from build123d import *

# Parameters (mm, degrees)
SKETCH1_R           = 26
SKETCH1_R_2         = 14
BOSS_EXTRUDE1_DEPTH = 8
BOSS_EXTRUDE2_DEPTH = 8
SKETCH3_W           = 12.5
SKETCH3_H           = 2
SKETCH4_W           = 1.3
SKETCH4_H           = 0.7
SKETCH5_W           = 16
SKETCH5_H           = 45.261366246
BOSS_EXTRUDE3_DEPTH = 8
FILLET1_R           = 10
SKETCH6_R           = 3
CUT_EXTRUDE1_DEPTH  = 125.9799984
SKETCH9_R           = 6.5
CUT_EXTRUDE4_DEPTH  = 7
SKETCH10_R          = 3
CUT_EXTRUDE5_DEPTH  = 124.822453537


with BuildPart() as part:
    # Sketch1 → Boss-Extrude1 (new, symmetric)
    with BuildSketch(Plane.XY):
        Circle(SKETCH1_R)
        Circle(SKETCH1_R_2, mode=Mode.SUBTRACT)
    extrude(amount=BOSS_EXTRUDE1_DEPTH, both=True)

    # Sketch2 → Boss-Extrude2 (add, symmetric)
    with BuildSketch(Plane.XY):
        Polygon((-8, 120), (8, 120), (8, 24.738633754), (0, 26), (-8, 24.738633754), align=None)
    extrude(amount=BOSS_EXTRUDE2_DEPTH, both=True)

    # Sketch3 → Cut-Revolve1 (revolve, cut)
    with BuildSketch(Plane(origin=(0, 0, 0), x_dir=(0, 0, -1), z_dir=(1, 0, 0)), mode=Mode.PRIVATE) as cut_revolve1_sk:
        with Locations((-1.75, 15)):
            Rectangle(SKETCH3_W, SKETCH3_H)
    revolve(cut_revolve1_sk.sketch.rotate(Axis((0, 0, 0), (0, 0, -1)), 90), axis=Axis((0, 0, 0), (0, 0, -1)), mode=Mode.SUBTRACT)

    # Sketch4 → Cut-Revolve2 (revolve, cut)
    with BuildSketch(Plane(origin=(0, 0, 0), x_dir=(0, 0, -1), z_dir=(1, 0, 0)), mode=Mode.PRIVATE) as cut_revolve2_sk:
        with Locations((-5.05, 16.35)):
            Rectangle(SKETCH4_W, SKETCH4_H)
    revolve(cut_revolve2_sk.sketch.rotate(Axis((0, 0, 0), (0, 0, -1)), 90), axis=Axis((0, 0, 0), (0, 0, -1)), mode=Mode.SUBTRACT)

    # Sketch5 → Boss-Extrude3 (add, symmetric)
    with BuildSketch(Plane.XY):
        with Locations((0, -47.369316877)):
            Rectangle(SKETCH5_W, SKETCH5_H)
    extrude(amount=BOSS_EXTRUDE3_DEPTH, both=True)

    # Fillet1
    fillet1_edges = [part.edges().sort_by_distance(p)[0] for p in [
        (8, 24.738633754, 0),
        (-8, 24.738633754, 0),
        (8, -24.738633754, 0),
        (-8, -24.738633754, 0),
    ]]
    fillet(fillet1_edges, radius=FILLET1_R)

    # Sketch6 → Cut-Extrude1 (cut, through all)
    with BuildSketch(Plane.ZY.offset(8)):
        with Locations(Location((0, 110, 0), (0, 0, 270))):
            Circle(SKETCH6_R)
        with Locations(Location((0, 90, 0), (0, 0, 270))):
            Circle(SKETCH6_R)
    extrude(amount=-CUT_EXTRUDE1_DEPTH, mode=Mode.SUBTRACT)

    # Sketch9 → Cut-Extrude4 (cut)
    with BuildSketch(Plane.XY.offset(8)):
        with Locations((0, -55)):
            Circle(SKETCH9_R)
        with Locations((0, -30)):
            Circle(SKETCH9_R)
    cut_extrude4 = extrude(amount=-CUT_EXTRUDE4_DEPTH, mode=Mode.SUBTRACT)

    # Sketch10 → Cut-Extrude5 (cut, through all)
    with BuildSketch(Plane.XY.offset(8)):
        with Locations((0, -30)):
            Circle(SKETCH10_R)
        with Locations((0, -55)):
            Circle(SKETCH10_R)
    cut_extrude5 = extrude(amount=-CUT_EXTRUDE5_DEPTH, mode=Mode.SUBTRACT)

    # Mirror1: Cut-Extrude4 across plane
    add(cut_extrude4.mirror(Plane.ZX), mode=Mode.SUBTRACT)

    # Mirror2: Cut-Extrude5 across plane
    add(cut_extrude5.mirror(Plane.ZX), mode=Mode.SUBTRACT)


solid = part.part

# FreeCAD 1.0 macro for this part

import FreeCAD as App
import Part
import Sketcher
Q = App.Units.Quantity


def edges_at(feature, points):
    """Names of the edges that pass closest to the given points."""
    edges = feature.Shape.Edges
    near = lambda p: min(range(len(edges)), key=lambda i: edges[i].distToShape(Part.Vertex(*p))[0])
    return sorted({f"Edge{near(p) + 1}" for p in points})


def add_polygon(sketch, points):
    """Adds a closed chain of lines whose ends are joined by coincident constraints."""
    first, n = sketch.GeometryCount, len(points)
    for a, b in zip(points, points[1:] + points[:1]):
        sketch.addGeometry(Part.LineSegment(App.Vector(*a, 0), App.Vector(*b, 0)), False)
    for i in range(n):
        sketch.addConstraint(Sketcher.Constraint("Coincident", first + i, 2, first + (i + 1) % n, 1))

doc = App.newDocument("Part")
body = doc.addObject("PartDesign::Body", "Body")

sketch1 = body.newObject("Sketcher::SketchObject", "Sketch")
sketch1.AttachmentSupport = (doc.getObject("XY_Plane"), [""])
sketch1.MapMode = "FlatFace"
sketch1.addGeometry(Part.Circle(App.Vector(0, 0, 0), App.Vector(0, 0, 1), 26), False)
sketch1.addGeometry(Part.Circle(App.Vector(0, 0, 0), App.Vector(0, 0, 1), 14), False)
sketch1.addConstraint(Sketcher.Constraint("Coincident", 0, 3, -1, 1))
sketch1.addConstraint(Sketcher.Constraint("Coincident", 1, 3, -1, 1))
sketch1.addConstraint(Sketcher.Constraint("Diameter", 0, Q("52 mm")))
sketch1.addConstraint(Sketcher.Constraint("Diameter", 1, Q("28 mm")))
pad1 = body.newObject("PartDesign::Pad", "Pad")
pad1.Profile = sketch1
pad1.Length = 16
pad1.Midplane = True

sketch2 = body.newObject("Sketcher::SketchObject", "Sketch001")
sketch2.AttachmentSupport = (doc.getObject("XY_Plane"), [""])
sketch2.MapMode = "FlatFace"
add_polygon(sketch2, [(8, 120), (-8, 120), (-8, 25), (0, 26), (8, 25)])
sketch2.addConstraint(Sketcher.Constraint("Horizontal", 0))
sketch2.addConstraint(Sketcher.Constraint("Vertical", 1))
sketch2.addConstraint(Sketcher.Constraint("Vertical", 4))
sketch2.addConstraint(Sketcher.Constraint("Symmetric", 1, 2, 3, 2, -2))
sketch2.addConstraint(Sketcher.Constraint("PointOnObject", 2, 2, -2))
sketch2.addConstraint(Sketcher.Constraint("DistanceX", 0, 2, 0, 1, Q("16 mm")))
sketch2.addConstraint(Sketcher.Constraint("DistanceY", -1, 1, 0, 2, Q("120 mm")))
sketch2.addConstraint(Sketcher.Constraint("DistanceY", -1, 1, 2, 2, Q("26 mm")))
sketch2.addConstraint(Sketcher.Constraint("Distance", 2, Q("8.09883 mm")))
pad2 = body.newObject("PartDesign::Pad", "Pad001")
pad2.Profile = sketch2
pad2.Length = 16
pad2.Midplane = True

sketch3 = body.newObject("Sketcher::SketchObject", "Sketch002")
sketch3.AttachmentSupport = (doc.getObject("YZ_Plane"), [""])
sketch3.MapMode = "FlatFace"
add_polygon(sketch3, [(16, 8), (14, 8), (14, -4.5), (16, -4.5)])
sketch3.addConstraint(Sketcher.Constraint("Horizontal", 0))
sketch3.addConstraint(Sketcher.Constraint("Vertical", 1))
sketch3.addConstraint(Sketcher.Constraint("Horizontal", 2))
sketch3.addConstraint(Sketcher.Constraint("Vertical", 3))
sketch3.addConstraint(Sketcher.Constraint("DistanceX", 0, 2, 0, 1, Q("2 mm")))
sketch3.addConstraint(Sketcher.Constraint("DistanceY", 1, 2, 1, 1, Q("12.5 mm")))
sketch3.addConstraint(Sketcher.Constraint("DistanceX", -1, 1, 0, 2, Q("14 mm")))
sketch3.addConstraint(Sketcher.Constraint("DistanceY", -1, 1, 0, 2, Q("8 mm")))
groove = body.newObject("PartDesign::Groove", "Groove")
groove.Profile = sketch3
groove.ReferenceAxis = (sketch3, ["V_Axis"])
groove.Angle = 360

sketch4 = body.newObject("Sketcher::SketchObject", "Sketch003")
sketch4.AttachmentSupport = (doc.getObject("YZ_Plane"), [""])
sketch4.MapMode = "FlatFace"
add_polygon(sketch4, [(16.7, 5.7), (16, 5.7), (16, 4.4), (16.7, 4.4)])
sketch4.addConstraint(Sketcher.Constraint("Horizontal", 0))
sketch4.addConstraint(Sketcher.Constraint("Vertical", 1))
sketch4.addConstraint(Sketcher.Constraint("Horizontal", 2))
sketch4.addConstraint(Sketcher.Constraint("Vertical", 3))
sketch4.addConstraint(Sketcher.Constraint("DistanceX", 0, 2, 0, 1, Q("0.7 mm")))
sketch4.addConstraint(Sketcher.Constraint("DistanceY", 1, 2, 1, 1, Q("1.3 mm")))
sketch4.addConstraint(Sketcher.Constraint("DistanceX", -1, 1, 0, 2, Q("16 mm")))
sketch4.addConstraint(Sketcher.Constraint("DistanceY", -1, 1, 0, 2, Q("5.7 mm")))
groove2 = body.newObject("PartDesign::Groove", "Groove001")
groove2.Profile = sketch4
groove2.ReferenceAxis = (sketch4, ["V_Axis"])
groove2.Angle = 360

sketch5 = body.newObject("Sketcher::SketchObject", "Sketch004")
sketch5.AttachmentSupport = (doc.getObject("XY_Plane"), [""])
sketch5.MapMode = "FlatFace"
add_polygon(sketch5, [(-8, -25), (-8, -70), (8, -70), (8, -25)])
sketch5.addConstraint(Sketcher.Constraint("Vertical", 0))
sketch5.addConstraint(Sketcher.Constraint("Horizontal", 1))
sketch5.addConstraint(Sketcher.Constraint("Vertical", 2))
sketch5.addConstraint(Sketcher.Constraint("Horizontal", 3))
sketch5.addConstraint(Sketcher.Constraint("DistanceX", 1, 1, 1, 2, Q("16 mm")))
sketch5.addConstraint(Sketcher.Constraint("DistanceX", 0, 2, -1, 1, Q("8 mm")))
sketch5.addConstraint(Sketcher.Constraint("DistanceY", 0, 2, -1, 1, Q("70 mm")))
sketch5.addConstraint(Sketcher.Constraint("DistanceY", 0, 2, 0, 1, Q("45.261366 mm")))
pad3 = body.newObject("PartDesign::Pad", "Pad002")
pad3.Profile = sketch5
pad3.Length = 16
pad3.Midplane = True
doc.recompute()

fillet = body.newObject("PartDesign::Fillet", "Fillet")
fillet.Base = (pad3, edges_at(pad3, [
    (8, 24.739, 0),
    (-8, 24.739, 0),
    (8, -24.739, 0),
    (-8, -24.739, 0),
]))
fillet.Radius = 10

sketch6 = body.newObject("Sketcher::SketchObject", "Sketch005")
sketch6.AttachmentSupport = (doc.getObject("YZ_Plane"), [""])
sketch6.MapMode = "FlatFace"
sketch6.AttachmentOffset = App.Placement(App.Vector(0, 0, -8), App.Rotation())
sketch6.addGeometry(Part.Circle(App.Vector(110, 0, 0), App.Vector(0, 0, 1), 3), False)
sketch6.addGeometry(Part.Circle(App.Vector(90, 0, 0), App.Vector(0, 0, 1), 3), False)
sketch6.addConstraint(Sketcher.Constraint("Equal", 0, 1))
sketch6.addConstraint(Sketcher.Constraint("PointOnObject", 0, 3, -1))
sketch6.addConstraint(Sketcher.Constraint("PointOnObject", 1, 3, -1))
sketch6.addConstraint(Sketcher.Constraint("Diameter", 0, Q("6 mm")))
sketch6.addConstraint(Sketcher.Constraint("DistanceX", -1, 1, 0, 3, Q("110 mm")))
sketch6.addConstraint(Sketcher.Constraint("DistanceX", -1, 1, 1, 3, Q("90 mm")))
pocket1 = body.newObject("PartDesign::Pocket", "Pocket")
pocket1.Profile = sketch6
pocket1.Type = "ThroughAll"
pocket1.Reversed = True

sketch7 = body.newObject("Sketcher::SketchObject", "Sketch006")
sketch7.AttachmentSupport = (doc.getObject("XY_Plane"), [""])
sketch7.MapMode = "FlatFace"
sketch7.AttachmentOffset = App.Placement(App.Vector(0, 0, 8), App.Rotation())
sketch7.addGeometry(Part.Circle(App.Vector(0, -55, 0), App.Vector(0, 0, 1), 6), False)
sketch7.addGeometry(Part.Circle(App.Vector(0, -30, 0), App.Vector(0, 0, 1), 6), False)
sketch7.addConstraint(Sketcher.Constraint("Equal", 0, 1))
sketch7.addConstraint(Sketcher.Constraint("PointOnObject", 0, 3, -2))
sketch7.addConstraint(Sketcher.Constraint("PointOnObject", 1, 3, -2))
sketch7.addConstraint(Sketcher.Constraint("Diameter", 0, Q("13 mm")))
sketch7.addConstraint(Sketcher.Constraint("DistanceY", 0, 3, -1, 1, Q("55 mm")))
sketch7.addConstraint(Sketcher.Constraint("DistanceY", 1, 3, -1, 1, Q("30 mm")))
pocket2 = body.newObject("PartDesign::Pocket", "Pocket001")
pocket2.Profile = sketch7
pocket2.Length = 7

sketch8 = body.newObject("Sketcher::SketchObject", "Sketch007")
sketch8.AttachmentSupport = (doc.getObject("XY_Plane"), [""])
sketch8.MapMode = "FlatFace"
sketch8.AttachmentOffset = App.Placement(App.Vector(0, 0, 8), App.Rotation())
sketch8.addGeometry(Part.Circle(App.Vector(0, -30, 0), App.Vector(0, 0, 1), 3), False)
sketch8.addGeometry(Part.Circle(App.Vector(0, -55, 0), App.Vector(0, 0, 1), 3), False)
sketch8.addConstraint(Sketcher.Constraint("Equal", 0, 1))
sketch8.addConstraint(Sketcher.Constraint("PointOnObject", 0, 3, -2))
sketch8.addConstraint(Sketcher.Constraint("PointOnObject", 1, 3, -2))
sketch8.addConstraint(Sketcher.Constraint("Diameter", 0, Q("6 mm")))
sketch8.addConstraint(Sketcher.Constraint("DistanceY", 0, 3, -1, 1, Q("30 mm")))
sketch8.addConstraint(Sketcher.Constraint("DistanceY", 1, 3, -1, 1, Q("55 mm")))
pocket3 = body.newObject("PartDesign::Pocket", "Pocket002")
pocket3.Profile = sketch8
pocket3.Type = "ThroughAll"
doc.recompute()

mirrored = body.newObject("PartDesign::Mirrored", "Mirrored")
mirrored.Originals = [pocket2]
mirrored.MirrorPlane = (doc.getObject("XZ_Plane"), [""])
body.Tip = mirrored
doc.recompute()

mirrored2 = body.newObject("PartDesign::Mirrored", "Mirrored001")
mirrored2.Originals = [pocket3]
mirrored2.MirrorPlane = (doc.getObject("XZ_Plane"), [""])
body.Tip = mirrored2

doc.recompute()
